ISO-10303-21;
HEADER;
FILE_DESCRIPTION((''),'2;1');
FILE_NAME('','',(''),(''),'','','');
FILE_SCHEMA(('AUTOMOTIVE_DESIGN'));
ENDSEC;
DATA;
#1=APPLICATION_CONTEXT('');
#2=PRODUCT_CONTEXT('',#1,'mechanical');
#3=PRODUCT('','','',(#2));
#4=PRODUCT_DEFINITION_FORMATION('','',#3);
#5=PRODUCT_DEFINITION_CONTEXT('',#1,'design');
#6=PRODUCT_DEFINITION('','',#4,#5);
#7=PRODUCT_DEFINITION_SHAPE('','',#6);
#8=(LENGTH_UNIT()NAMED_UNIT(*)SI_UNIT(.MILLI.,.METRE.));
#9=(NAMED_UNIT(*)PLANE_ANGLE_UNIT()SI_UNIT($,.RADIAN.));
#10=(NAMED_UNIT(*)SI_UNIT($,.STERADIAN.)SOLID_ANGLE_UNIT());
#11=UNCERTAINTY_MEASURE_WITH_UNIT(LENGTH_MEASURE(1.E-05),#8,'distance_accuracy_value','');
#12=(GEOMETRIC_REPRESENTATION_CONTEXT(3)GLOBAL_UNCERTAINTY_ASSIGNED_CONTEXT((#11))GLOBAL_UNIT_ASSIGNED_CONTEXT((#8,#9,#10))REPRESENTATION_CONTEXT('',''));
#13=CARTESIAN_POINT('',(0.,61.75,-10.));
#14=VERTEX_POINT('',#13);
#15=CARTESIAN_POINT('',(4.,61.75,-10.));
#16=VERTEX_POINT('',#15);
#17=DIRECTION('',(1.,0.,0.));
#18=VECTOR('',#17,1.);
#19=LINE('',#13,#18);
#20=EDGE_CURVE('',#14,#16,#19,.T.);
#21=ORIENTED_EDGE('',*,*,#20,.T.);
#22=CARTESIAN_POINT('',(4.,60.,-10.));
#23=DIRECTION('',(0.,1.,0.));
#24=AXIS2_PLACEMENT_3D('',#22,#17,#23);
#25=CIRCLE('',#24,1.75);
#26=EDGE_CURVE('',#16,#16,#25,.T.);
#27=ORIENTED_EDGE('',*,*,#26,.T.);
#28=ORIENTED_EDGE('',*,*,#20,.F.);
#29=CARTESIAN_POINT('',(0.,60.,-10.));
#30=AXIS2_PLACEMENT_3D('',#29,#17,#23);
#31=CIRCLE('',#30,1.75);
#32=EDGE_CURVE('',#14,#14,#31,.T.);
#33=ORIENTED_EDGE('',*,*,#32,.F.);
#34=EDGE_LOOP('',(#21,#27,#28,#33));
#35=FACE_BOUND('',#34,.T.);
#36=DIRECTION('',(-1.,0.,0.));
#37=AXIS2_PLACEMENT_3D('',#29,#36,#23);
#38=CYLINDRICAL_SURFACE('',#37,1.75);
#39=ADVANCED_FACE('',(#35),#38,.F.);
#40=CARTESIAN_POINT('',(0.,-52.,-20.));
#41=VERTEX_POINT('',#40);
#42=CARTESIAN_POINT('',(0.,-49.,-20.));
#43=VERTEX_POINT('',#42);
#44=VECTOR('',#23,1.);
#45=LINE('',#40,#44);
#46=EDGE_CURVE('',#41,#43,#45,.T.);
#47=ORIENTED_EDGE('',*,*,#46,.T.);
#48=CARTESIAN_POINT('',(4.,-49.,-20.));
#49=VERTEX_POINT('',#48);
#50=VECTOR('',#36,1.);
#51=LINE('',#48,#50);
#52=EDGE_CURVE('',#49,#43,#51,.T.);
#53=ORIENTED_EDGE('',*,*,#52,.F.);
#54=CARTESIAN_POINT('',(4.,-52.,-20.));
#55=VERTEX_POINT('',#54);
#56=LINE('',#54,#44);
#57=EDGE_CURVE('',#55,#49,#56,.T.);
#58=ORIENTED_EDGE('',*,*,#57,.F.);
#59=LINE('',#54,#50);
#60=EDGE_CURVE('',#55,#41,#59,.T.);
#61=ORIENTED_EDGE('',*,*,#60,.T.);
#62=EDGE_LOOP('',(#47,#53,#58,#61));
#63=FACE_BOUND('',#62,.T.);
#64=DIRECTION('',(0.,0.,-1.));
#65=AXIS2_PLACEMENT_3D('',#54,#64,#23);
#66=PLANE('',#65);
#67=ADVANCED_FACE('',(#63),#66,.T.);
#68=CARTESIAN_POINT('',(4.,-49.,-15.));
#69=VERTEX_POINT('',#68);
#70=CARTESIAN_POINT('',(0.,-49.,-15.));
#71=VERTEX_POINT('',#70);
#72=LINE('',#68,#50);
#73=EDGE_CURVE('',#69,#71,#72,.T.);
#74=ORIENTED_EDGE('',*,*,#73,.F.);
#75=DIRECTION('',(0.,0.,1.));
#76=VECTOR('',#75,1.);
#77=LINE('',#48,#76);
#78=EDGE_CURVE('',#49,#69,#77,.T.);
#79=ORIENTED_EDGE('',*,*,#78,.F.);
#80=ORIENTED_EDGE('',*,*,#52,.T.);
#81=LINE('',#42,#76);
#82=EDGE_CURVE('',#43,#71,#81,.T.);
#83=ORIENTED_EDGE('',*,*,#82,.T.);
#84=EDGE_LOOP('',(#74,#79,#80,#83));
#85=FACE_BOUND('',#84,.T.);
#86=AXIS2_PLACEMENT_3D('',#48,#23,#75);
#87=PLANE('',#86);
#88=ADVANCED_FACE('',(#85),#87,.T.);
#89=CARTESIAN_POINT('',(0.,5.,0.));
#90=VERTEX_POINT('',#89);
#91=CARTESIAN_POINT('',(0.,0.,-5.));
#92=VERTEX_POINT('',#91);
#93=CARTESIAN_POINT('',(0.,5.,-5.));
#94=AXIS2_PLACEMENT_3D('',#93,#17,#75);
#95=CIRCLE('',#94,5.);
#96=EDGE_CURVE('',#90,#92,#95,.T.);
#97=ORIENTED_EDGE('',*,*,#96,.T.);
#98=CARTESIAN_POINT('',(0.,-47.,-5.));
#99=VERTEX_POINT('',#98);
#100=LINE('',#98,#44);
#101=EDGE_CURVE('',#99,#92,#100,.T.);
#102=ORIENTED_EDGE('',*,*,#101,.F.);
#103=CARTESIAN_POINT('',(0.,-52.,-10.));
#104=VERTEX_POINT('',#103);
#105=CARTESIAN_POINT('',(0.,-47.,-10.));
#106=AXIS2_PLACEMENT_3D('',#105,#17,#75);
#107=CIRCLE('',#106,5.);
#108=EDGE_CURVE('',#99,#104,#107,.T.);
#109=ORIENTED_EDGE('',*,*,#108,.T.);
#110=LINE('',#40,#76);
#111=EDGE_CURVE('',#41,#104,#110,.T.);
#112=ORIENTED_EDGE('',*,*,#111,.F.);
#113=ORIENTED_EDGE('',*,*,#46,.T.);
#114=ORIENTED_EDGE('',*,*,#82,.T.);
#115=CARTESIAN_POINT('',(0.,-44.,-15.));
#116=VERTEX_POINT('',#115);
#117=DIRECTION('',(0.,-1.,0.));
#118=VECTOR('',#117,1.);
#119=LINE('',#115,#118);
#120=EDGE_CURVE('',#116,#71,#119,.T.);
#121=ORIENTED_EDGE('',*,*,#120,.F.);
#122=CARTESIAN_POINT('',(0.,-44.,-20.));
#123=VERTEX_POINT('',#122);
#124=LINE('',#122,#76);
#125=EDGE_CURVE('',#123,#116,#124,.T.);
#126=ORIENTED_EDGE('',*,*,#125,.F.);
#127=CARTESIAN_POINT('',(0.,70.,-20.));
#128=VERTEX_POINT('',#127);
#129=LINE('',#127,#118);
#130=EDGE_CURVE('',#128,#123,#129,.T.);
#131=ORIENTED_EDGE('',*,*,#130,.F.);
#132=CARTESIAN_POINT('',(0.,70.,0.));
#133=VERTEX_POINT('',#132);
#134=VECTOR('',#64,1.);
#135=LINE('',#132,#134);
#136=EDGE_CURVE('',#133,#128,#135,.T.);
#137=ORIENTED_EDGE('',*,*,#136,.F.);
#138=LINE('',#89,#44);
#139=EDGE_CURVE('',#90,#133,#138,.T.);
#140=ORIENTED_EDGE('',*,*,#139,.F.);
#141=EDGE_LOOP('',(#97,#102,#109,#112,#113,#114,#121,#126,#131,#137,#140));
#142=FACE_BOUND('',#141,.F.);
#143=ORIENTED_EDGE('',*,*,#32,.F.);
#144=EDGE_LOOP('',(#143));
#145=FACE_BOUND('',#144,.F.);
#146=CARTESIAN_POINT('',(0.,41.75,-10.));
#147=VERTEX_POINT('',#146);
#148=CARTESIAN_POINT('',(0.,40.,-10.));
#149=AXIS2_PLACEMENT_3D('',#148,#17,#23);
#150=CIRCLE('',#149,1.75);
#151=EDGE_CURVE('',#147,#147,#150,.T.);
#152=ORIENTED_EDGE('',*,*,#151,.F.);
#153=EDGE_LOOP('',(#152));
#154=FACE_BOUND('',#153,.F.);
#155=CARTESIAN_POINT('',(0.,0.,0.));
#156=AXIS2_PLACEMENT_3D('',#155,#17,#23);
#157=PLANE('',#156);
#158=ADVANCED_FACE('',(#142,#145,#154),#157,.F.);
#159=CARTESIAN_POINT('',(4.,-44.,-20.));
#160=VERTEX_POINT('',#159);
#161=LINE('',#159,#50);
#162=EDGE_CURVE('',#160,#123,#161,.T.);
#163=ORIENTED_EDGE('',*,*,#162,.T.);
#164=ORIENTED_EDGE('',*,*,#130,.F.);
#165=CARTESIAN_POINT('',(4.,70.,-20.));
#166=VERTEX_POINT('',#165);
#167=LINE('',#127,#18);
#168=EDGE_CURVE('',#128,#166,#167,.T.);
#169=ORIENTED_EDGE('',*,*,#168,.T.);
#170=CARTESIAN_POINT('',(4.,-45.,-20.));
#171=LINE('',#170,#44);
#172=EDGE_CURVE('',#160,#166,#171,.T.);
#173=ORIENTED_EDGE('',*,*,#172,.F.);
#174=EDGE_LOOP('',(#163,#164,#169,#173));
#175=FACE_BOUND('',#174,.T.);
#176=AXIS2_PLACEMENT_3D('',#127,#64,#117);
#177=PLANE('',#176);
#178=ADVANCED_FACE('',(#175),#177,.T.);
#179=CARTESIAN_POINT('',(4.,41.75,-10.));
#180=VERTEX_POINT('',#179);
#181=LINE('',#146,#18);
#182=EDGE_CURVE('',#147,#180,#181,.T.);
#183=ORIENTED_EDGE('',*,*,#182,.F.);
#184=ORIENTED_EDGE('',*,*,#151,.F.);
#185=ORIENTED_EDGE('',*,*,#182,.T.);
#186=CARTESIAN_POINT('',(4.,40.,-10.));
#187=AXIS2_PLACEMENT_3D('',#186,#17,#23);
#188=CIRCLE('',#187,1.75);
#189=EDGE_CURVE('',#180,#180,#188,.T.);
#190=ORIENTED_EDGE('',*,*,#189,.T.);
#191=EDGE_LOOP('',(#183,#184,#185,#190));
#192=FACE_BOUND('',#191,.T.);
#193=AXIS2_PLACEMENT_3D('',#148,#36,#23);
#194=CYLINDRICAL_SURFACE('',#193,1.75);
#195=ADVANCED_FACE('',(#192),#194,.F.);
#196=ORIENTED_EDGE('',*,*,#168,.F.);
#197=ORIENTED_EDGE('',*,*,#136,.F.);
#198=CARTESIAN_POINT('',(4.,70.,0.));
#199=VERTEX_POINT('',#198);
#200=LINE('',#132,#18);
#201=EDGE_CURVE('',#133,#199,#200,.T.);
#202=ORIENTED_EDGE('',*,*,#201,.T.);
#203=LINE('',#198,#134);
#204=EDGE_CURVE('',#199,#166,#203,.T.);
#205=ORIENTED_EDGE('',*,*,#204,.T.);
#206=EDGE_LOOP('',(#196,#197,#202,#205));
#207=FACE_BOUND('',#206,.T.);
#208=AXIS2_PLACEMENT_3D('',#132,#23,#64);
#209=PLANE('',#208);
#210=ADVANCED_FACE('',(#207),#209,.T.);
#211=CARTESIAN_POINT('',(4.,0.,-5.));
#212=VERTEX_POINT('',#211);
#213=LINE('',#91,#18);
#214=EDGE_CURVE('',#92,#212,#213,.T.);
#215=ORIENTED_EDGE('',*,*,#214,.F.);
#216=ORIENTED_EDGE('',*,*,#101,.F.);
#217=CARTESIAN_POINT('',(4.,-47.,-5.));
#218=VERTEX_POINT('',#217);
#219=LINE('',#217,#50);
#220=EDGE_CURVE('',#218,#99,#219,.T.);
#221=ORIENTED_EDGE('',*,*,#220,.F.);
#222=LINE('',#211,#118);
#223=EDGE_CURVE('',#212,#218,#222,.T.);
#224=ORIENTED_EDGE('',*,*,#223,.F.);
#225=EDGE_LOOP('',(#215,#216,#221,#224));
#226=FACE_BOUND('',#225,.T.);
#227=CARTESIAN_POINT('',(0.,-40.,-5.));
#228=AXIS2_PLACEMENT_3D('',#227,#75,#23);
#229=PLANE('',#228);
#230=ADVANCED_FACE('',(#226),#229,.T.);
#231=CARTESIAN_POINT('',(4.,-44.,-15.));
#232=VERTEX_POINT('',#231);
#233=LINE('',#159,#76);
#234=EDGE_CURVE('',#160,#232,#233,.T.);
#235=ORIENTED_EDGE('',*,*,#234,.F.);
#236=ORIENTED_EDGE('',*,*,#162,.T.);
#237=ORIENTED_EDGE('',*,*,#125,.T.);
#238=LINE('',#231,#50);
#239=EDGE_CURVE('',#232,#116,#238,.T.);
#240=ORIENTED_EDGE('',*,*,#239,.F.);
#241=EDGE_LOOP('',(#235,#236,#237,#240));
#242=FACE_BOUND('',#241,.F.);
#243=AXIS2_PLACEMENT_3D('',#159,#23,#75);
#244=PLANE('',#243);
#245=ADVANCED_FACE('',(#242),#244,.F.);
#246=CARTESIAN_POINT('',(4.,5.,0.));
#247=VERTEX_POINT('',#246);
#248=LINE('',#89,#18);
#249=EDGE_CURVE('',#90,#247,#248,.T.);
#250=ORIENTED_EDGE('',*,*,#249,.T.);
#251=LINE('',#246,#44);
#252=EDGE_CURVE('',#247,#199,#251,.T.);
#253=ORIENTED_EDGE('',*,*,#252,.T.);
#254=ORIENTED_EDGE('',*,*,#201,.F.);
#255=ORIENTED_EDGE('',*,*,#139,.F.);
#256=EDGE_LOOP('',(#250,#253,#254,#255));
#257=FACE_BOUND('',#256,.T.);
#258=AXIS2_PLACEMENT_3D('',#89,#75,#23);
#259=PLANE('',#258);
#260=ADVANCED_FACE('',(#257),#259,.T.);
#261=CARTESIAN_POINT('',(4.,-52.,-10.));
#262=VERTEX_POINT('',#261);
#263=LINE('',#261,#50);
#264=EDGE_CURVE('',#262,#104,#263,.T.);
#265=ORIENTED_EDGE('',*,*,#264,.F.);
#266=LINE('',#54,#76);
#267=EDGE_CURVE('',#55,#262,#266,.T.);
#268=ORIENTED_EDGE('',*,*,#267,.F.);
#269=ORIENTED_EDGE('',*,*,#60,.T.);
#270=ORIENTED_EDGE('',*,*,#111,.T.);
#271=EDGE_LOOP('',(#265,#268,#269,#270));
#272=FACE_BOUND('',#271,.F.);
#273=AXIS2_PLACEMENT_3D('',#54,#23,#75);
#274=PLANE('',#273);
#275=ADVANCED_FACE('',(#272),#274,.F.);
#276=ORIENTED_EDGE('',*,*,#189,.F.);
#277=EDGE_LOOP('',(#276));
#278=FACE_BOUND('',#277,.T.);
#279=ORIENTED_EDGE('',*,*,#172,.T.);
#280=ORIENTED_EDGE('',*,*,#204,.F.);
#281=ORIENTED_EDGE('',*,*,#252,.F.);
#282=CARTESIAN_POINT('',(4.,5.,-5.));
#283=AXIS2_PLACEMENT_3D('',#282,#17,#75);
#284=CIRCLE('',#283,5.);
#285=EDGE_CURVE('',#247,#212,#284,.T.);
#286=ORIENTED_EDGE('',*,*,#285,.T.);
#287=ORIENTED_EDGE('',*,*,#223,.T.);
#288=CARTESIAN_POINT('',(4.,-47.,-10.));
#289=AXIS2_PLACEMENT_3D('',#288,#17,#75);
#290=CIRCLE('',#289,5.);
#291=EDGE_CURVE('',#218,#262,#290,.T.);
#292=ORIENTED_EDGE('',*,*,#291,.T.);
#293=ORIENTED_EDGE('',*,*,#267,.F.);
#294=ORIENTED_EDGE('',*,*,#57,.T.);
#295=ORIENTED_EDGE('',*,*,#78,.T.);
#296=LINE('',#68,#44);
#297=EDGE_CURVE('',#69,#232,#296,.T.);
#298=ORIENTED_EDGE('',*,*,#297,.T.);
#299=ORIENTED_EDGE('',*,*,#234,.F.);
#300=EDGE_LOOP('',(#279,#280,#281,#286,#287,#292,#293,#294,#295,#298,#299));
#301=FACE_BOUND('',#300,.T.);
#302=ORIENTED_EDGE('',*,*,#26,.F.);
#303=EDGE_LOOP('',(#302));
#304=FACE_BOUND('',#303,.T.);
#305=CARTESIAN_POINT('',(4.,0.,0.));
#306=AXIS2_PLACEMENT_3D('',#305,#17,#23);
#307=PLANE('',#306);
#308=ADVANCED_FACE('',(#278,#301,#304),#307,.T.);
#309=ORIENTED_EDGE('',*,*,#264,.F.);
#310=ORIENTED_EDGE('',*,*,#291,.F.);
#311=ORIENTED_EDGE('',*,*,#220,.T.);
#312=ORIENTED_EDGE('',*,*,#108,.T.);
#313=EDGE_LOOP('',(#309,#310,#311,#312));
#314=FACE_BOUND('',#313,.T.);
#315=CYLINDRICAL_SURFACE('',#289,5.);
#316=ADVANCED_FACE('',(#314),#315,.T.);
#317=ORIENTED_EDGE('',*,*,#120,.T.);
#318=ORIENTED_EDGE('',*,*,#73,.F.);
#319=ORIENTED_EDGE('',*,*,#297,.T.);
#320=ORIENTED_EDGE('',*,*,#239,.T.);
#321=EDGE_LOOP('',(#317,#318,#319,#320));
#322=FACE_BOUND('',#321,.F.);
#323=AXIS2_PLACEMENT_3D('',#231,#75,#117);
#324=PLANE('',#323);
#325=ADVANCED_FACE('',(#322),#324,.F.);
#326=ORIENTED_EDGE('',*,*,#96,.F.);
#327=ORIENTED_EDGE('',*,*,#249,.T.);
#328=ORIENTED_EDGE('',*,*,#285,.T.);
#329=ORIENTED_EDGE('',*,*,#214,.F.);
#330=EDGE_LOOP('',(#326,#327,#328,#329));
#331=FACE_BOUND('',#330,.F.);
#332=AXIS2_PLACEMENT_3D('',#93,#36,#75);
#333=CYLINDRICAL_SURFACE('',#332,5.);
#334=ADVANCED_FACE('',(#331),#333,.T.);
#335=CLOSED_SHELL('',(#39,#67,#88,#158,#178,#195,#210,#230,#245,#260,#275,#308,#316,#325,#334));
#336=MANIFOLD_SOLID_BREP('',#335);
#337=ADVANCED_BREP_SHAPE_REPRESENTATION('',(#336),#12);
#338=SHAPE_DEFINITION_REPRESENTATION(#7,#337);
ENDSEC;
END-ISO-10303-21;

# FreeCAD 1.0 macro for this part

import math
import FreeCAD as App
import Part
import Sketcher

V = App.Vector

doc = App.newDocument("Part")
params = doc.addObject("Spreadsheet::Sheet", "Params")
for row, (alias, value) in enumerate([
    ("sketch1_radius", "5 mm"),
    ("sketch1_diameter", "3.5 mm"),
    ("sketch1_height", "20 mm"),
    ("pad1_length", "4 mm"),
    ("sketch2_radius", "5 mm"),
    ("sketch2_width", "3 mm"),
    ("sketch2_height", "10 mm"),
    ("sketch2_width2", "9 mm"),
    ("pad2_length", "4 mm"),
    ("sketch3_width", "1 mm"),
    ("sketch3_height", "5 mm"),
    ("pocket1_length", "4 mm"),
], start=1):
    params.set(f"A{row}", alias)
    params.set(f"B{row}", "=" + value)
    params.setAlias(f"B{row}", alias)

body = doc.addObject("PartDesign::Body", "Body")

# Sketch on YZ plane
sketch1 = doc.addObject("Sketcher::SketchObject", "Sketch")
body.addObject(sketch1)
sketch1.AttachmentSupport = (doc.YZ_Plane, [""])
sketch1.MapMode = "FlatFace"
sketch1.addGeometry(Part.LineSegment(V(70, 0, 0), V(5, 0, 0)), False)
sketch1.addGeometry(Part.ArcOfCircle(Part.Circle(V(5, -5, 0), V(0, 0, 1), 5), math.radians(90), math.radians(180)), False)
sketch1.addGeometry(Part.LineSegment(V(0, -5, 0), V(-40, -5, 0)), False)
sketch1.addGeometry(Part.ArcOfCircle(Part.Circle(V(-40, -10, 0), V(0, 0, 1), 5), math.radians(90), math.radians(180)), False)
sketch1.addGeometry(Part.LineSegment(V(-45, -10, 0), V(-45, -20, 0)), False)
sketch1.addGeometry(Part.LineSegment(V(-45, -20, 0), V(70, -20, 0)), False)
sketch1.addGeometry(Part.LineSegment(V(70, -20, 0), V(70, 0, 0)), False)
sketch1.addGeometry(Part.Circle(V(40, -10, 0), V(0, 0, 1), 1.75), False)
sketch1.addGeometry(Part.Circle(V(60, -10, 0), V(0, 0, 1), 1.75), False)
sketch1.addConstraint(Sketcher.Constraint("Tangent", 0, 2, 1, 1))
sketch1.addConstraint(Sketcher.Constraint("Coincident", 1, 2, 2, 1))
sketch1.addConstraint(Sketcher.Constraint("Tangent", 2, 2, 3, 1))
sketch1.addConstraint(Sketcher.Constraint("Tangent", 3, 2, 4, 1))
sketch1.addConstraint(Sketcher.Constraint("Coincident", 4, 2, 5, 1))
sketch1.addConstraint(Sketcher.Constraint("Coincident", 5, 2, 6, 1))
sketch1.addConstraint(Sketcher.Constraint("Coincident", 6, 2, 0, 1))
sketch1.addConstraint(Sketcher.Constraint("Horizontal", 0))
sketch1.addConstraint(Sketcher.Constraint("Horizontal", 2))
sketch1.addConstraint(Sketcher.Constraint("Vertical", 4))
sketch1.addConstraint(Sketcher.Constraint("Horizontal", 5))
sketch1.addConstraint(Sketcher.Constraint("Vertical", 6))
sketch1.addConstraint(Sketcher.Constraint("Equal", 1, 3))
sketch1.addConstraint(Sketcher.Constraint("Equal", 7, 8))
sketch1.addConstraint(Sketcher.Constraint("Symmetric", 3, 3, 7, 3, -2))
sketch1.addConstraint(Sketcher.Constraint("PointOnObject", 0, 2, -1))
sketch1.addConstraint(Sketcher.Constraint("PointOnObject", 1, 2, -2))
sketch1.addConstraint(Sketcher.Constraint("Horizontal", 7, 3, 8, 3))
sketch1.addConstraint(Sketcher.Constraint("Radius", 1, 5.0))
sketch1.addConstraint(Sketcher.Constraint("Diameter", 7, 3.5))
sketch1.addConstraint(Sketcher.Constraint("DistanceY", 6, 1, 6, 2, 20.0))
sketch1.addConstraint(Sketcher.Constraint("DistanceY", 1, 2, -1, 1, 5.0))
sketch1.addConstraint(Sketcher.Constraint("DistanceX", 3, 2, -1, 1, 45.0))
sketch1.addConstraint(Sketcher.Constraint("DistanceX", -1, 1, 5, 2, 70.0))
sketch1.addConstraint(Sketcher.Constraint("DistanceX", 7, 3, 8, 3, 20.0))
sketch1.setExpression("Constraints[18]", "Params.sketch1_radius")
sketch1.setExpression("Constraints[19]", "Params.sketch1_diameter")
sketch1.setExpression("Constraints[20]", "Params.sketch1_height")
pad1 = doc.addObject("PartDesign::Pad", "Pad")
body.addObject(pad1)
pad1.Profile = sketch1
pad1.setExpression("Length", "Params.pad1_length")

# Sketch on YZ plane
sketch2 = doc.addObject("Sketcher::SketchObject", "Sketch001")
body.addObject(sketch2)
sketch2.AttachmentSupport = (doc.YZ_Plane, [""])
sketch2.MapMode = "FlatFace"
sketch2.AttachmentOffset = App.Placement(V(0, 0, 4), App.Rotation())
sketch2.addGeometry(Part.LineSegment(V(-52, -10, 0), V(-52, -20, 0)), False)
sketch2.addGeometry(Part.LineSegment(V(-52, -20, 0), V(-49, -20, 0)), False)
sketch2.addGeometry(Part.LineSegment(V(-49, -20, 0), V(-49, -15, 0)), False)
sketch2.addGeometry(Part.LineSegment(V(-49, -15, 0), V(-40, -15, 0)), False)
sketch2.addGeometry(Part.LineSegment(V(-40, -15, 0), V(-40, -5, 0)), False)
sketch2.addGeometry(Part.LineSegment(V(-40, -5, 0), V(-47, -5, 0)), False)
sketch2.addGeometry(Part.ArcOfCircle(Part.Circle(V(-47, -10, 0), V(0, 0, 1), 5), math.radians(90), math.radians(180)), False)
sketch2.addConstraint(Sketcher.Constraint("Coincident", 0, 2, 1, 1))
sketch2.addConstraint(Sketcher.Constraint("Coincident", 1, 2, 2, 1))
sketch2.addConstraint(Sketcher.Constraint("Coincident", 2, 2, 3, 1))
sketch2.addConstraint(Sketcher.Constraint("Coincident", 3, 2, 4, 1))
sketch2.addConstraint(Sketcher.Constraint("Coincident", 4, 2, 5, 1))
sketch2.addConstraint(Sketcher.Constraint("Tangent", 5, 2, 6, 1))
sketch2.addConstraint(Sketcher.Constraint("Tangent", 6, 2, 0, 1))
sketch2.addConstraint(Sketcher.Constraint("Vertical", 0))
sketch2.addConstraint(Sketcher.Constraint("Horizontal", 1))
sketch2.addConstraint(Sketcher.Constraint("Vertical", 2))
sketch2.addConstraint(Sketcher.Constraint("Horizontal", 3))
sketch2.addConstraint(Sketcher.Constraint("Vertical", 4))
sketch2.addConstraint(Sketcher.Constraint("Horizontal", 5))
sketch2.addConstraint(Sketcher.Constraint("Equal", 0, 4))
sketch2.addConstraint(Sketcher.Constraint("Radius", 6, 5.0))
sketch2.addConstraint(Sketcher.Constraint("DistanceX", 1, 1, 1, 2, 3.0))
sketch2.addConstraint(Sketcher.Constraint("DistanceY", 0, 2, 0, 1, 10.0))
sketch2.addConstraint(Sketcher.Constraint("DistanceY", 6, 3, -1, 1, 10.0))
sketch2.addConstraint(Sketcher.Constraint("DistanceX", 3, 1, 3, 2, 9.0))
sketch2.addConstraint(Sketcher.Constraint("DistanceX", 6, 3, -1, 1, 47.0))
sketch2.setExpression("Constraints[14]", "Params.sketch2_radius")
sketch2.setExpression("Constraints[15]", "Params.sketch2_width")
sketch2.setExpression("Constraints[16]", "Params.sketch2_height")
sketch2.setExpression("Constraints[18]", "Params.sketch2_width2")
pad2 = doc.addObject("PartDesign::Pad", "Pad001")
body.addObject(pad2)
pad2.Profile = sketch2
pad2.setExpression("Length", "Params.pad2_length")
pad2.Reversed = True

# Sketch on YZ plane
sketch3 = doc.addObject("Sketcher::SketchObject", "Sketch002")
body.addObject(sketch3)
sketch3.AttachmentSupport = (doc.YZ_Plane, [""])
sketch3.MapMode = "FlatFace"
sketch3.AttachmentOffset = App.Placement(V(0, 0, 4), App.Rotation())
sketch3.addGeometry(Part.LineSegment(V(-44, -15, 0), V(-45, -15, 0)), False)
sketch3.addGeometry(Part.LineSegment(V(-45, -15, 0), V(-45, -20, 0)), False)
sketch3.addGeometry(Part.LineSegment(V(-45, -20, 0), V(-44, -20, 0)), False)
sketch3.addGeometry(Part.LineSegment(V(-44, -20, 0), V(-44, -15, 0)), False)
sketch3.addConstraint(Sketcher.Constraint("Coincident", 0, 2, 1, 1))
sketch3.addConstraint(Sketcher.Constraint("Coincident", 1, 2, 2, 1))
sketch3.addConstraint(Sketcher.Constraint("Coincident", 2, 2, 3, 1))
sketch3.addConstraint(Sketcher.Constraint("Coincident", 3, 2, 0, 1))
sketch3.addConstraint(Sketcher.Constraint("Horizontal", 0))
sketch3.addConstraint(Sketcher.Constraint("Vertical", 1))
sketch3.addConstraint(Sketcher.Constraint("Horizontal", 2))
sketch3.addConstraint(Sketcher.Constraint("Vertical", 3))
sketch3.addConstraint(Sketcher.Constraint("DistanceX", 0, 2, 0, 1, 1.0))
sketch3.addConstraint(Sketcher.Constraint("DistanceY", 1, 2, 1, 1, 5.0))
sketch3.addConstraint(Sketcher.Constraint("DistanceX", 0, 2, -1, 1, 45.0))
sketch3.addConstraint(Sketcher.Constraint("DistanceY", 0, 2, -1, 1, 15.0))
sketch3.setExpression("Constraints[8]", "Params.sketch3_width")
sketch3.setExpression("Constraints[9]", "Params.sketch3_height")
pocket1 = doc.addObject("PartDesign::Pocket", "Pocket")
body.addObject(pocket1)
pocket1.Profile = sketch3
pocket1.setExpression("Length", "Params.pocket1_length")

doc.recompute()
